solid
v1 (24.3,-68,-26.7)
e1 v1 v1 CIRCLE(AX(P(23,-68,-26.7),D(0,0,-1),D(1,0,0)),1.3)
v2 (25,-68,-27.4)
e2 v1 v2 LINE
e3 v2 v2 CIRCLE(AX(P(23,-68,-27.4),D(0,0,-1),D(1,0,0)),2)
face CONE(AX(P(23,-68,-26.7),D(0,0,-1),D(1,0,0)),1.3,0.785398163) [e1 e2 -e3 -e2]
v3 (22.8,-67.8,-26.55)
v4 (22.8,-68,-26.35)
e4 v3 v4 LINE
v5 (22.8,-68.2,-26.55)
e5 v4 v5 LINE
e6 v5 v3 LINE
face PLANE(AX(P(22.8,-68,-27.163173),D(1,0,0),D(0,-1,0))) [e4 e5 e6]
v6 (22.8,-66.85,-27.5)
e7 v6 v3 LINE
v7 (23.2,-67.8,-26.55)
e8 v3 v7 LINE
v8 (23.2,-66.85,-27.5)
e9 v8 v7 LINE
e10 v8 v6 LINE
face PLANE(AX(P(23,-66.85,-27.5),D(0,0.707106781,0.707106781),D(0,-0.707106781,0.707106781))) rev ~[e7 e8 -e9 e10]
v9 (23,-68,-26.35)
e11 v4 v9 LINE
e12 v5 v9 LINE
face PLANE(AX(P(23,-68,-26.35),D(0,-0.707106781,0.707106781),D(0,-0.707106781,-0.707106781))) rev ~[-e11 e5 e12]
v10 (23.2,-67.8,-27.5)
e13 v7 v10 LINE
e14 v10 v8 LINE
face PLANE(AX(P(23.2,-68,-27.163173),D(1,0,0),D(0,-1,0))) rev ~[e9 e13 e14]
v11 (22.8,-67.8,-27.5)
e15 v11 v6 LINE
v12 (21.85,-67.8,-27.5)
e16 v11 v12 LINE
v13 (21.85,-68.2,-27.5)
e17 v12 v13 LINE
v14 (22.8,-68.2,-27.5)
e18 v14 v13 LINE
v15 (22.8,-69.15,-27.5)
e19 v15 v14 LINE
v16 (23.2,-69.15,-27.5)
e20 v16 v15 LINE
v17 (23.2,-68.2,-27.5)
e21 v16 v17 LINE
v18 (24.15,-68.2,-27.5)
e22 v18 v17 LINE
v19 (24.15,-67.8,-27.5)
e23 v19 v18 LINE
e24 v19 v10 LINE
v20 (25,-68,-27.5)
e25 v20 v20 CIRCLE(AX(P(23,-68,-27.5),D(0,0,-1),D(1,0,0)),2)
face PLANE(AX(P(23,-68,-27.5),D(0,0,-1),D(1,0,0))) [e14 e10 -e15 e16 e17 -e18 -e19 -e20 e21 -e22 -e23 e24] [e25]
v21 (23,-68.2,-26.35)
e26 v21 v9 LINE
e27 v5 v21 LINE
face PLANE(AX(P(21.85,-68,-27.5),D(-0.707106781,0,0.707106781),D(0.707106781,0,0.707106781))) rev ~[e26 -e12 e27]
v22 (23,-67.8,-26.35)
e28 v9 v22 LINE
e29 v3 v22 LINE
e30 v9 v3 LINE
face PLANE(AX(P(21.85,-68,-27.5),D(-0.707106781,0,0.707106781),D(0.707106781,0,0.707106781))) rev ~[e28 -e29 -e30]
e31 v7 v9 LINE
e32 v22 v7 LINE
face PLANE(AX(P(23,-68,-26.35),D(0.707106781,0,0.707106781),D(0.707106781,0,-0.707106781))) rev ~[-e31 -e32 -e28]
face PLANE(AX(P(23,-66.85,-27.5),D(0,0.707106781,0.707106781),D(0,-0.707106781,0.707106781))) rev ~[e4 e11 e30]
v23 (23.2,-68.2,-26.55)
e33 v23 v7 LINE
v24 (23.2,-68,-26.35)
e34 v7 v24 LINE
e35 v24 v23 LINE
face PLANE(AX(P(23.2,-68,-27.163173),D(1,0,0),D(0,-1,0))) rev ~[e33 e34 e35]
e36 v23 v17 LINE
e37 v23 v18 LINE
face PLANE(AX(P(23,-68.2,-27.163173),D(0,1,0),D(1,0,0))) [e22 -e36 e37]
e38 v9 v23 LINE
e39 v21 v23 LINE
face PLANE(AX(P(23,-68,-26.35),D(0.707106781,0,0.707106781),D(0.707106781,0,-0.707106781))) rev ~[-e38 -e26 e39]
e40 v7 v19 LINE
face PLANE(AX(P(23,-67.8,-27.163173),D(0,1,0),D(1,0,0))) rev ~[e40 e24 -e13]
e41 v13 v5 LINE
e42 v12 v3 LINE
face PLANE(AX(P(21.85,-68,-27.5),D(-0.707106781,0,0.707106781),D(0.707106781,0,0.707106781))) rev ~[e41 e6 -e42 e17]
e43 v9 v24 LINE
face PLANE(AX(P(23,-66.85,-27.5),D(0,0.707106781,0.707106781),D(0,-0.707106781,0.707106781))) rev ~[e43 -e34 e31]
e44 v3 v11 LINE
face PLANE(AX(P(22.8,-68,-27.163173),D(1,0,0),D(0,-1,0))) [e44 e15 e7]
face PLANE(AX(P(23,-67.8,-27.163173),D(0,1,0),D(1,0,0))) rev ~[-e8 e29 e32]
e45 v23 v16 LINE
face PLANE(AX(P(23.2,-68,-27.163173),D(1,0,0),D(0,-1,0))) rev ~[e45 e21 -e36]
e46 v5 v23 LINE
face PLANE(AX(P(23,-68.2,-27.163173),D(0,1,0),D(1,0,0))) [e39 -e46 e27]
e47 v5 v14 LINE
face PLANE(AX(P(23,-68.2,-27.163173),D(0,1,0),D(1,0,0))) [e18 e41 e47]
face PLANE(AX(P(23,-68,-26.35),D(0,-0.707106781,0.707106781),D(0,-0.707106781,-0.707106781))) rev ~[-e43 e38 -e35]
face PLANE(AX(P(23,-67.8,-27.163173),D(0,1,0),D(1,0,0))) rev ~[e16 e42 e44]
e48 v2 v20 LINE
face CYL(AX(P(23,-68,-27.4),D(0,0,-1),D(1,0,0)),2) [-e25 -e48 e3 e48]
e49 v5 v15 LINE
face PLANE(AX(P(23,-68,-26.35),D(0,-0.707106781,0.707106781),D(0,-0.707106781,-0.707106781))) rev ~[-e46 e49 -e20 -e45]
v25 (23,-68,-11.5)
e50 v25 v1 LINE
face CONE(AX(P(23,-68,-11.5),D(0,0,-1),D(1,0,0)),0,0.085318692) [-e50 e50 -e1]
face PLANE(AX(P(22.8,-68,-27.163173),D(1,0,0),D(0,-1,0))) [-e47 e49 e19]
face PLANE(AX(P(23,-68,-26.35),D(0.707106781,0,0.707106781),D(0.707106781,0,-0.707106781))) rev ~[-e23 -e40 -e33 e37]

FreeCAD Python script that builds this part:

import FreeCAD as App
import Part
import Sketcher
from FreeCAD import Vector
Q = App.Units.Quantity

doc = App.newDocument("Part")
body = doc.addObject("PartDesign::Body", "Body")

sketch1 = doc.addObject("Sketcher::SketchObject", "Sketch")
body.addObject(sketch1)
sketch1.AttachmentSupport = (doc.XZ_Plane, [""])
sketch1.MapMode = "FlatFace"
sketch1.addGeometry(Part.LineSegment(Vector(0, 0, 0), Vector(0, -16, 0)), False)
sketch1.addGeometry(Part.LineSegment(Vector(0, -16, 0), Vector(1.3, -0.8, 0)), False)
sketch1.addGeometry(Part.LineSegment(Vector(1.3, -0.8, 0), Vector(2, -0.1, 0)), False)
sketch1.addGeometry(Part.LineSegment(Vector(2, -0.1, 0), Vector(2, 0, 0)), False)
sketch1.addGeometry(Part.LineSegment(Vector(2, 0, 0), Vector(0, 0, 0)), False)
sketch1.addConstraint(Sketcher.Constraint("Coincident", 0, 2, 1, 1))
sketch1.addConstraint(Sketcher.Constraint("Coincident", 1, 2, 2, 1))
sketch1.addConstraint(Sketcher.Constraint("Coincident", 2, 2, 3, 1))
sketch1.addConstraint(Sketcher.Constraint("Coincident", 3, 2, 4, 1))
sketch1.addConstraint(Sketcher.Constraint("Coincident", 4, 2, 0, 1))
sketch1.addConstraint(Sketcher.Constraint("Vertical", 0))
sketch1.addConstraint(Sketcher.Constraint("Vertical", 3))
sketch1.addConstraint(Sketcher.Constraint("Horizontal", 4))
sketch1.addConstraint(Sketcher.Constraint("Coincident", 4, 2, -1, 1))
sketch1.addConstraint(Sketcher.Constraint("DistanceX", 4, 2, 4, 1, 2.0))
sketch1.addConstraint(Sketcher.Constraint("DistanceY", 0, 2, 0, 1, 16.0))
sketch1.addConstraint(Sketcher.Constraint("Angle", 2, Q("45 deg")))
sketch1.addConstraint(Sketcher.Constraint("DistanceY", 3, 1, 3, 2, 0.1))
sketch1.addConstraint(Sketcher.Constraint("DistanceX", -1, 1, 1, 2, 1.3))
revolution = doc.addObject("PartDesign::Revolution", "Revolution")
body.addObject(revolution)
revolution.Profile = sketch1
revolution.ReferenceAxis = (sketch1, ["V_Axis"])
revolution.Angle = 360

sketch2 = doc.addObject("Sketcher::SketchObject", "Sketch001")
body.addObject(sketch2)
sketch2.AttachmentSupport = (doc.XZ_Plane, [""])
sketch2.MapMode = "FlatFace"
sketch2.addGeometry(Part.LineSegment(Vector(-1.1, 0, 0), Vector(0, -1.1, 0)), False)
sketch2.addGeometry(Part.LineSegment(Vector(0, -1.1, 0), Vector(1.1, 0, 0)), False)
sketch2.addGeometry(Part.LineSegment(Vector(1.1, 0, 0), Vector(-1.1, 0, 0)), False)
sketch2.addConstraint(Sketcher.Constraint("Coincident", 0, 2, 1, 1))
sketch2.addConstraint(Sketcher.Constraint("Coincident", 1, 2, 2, 1))
sketch2.addConstraint(Sketcher.Constraint("Coincident", 2, 2, 0, 1))
sketch2.addConstraint(Sketcher.Constraint("Horizontal", 2))
sketch2.addConstraint(Sketcher.Constraint("Symmetric", 1, 2, 2, 2, -1, 1))
sketch2.addConstraint(Sketcher.Constraint("PointOnObject", 0, 2, -2))
sketch2.addConstraint(Sketcher.Constraint("Perpendicular", 0, 1))
sketch2.addConstraint(Sketcher.Constraint("DistanceX", 2, 2, 2, 1, 2.3))
pocket1 = doc.addObject("PartDesign::Pocket", "Pocket")
body.addObject(pocket1)
pocket1.Profile = sketch2
pocket1.Length = 0.4
pocket1.Midplane = True
doc.recompute()

polarpattern = doc.addObject("PartDesign::PolarPattern", "PolarPattern")
body.addObject(polarpattern)
polarpattern.Originals = [pocket1]
polarpattern.Axis = (doc.Z_Axis, [""])
polarpattern.Angle = 90
polarpattern.Occurrences = 2
body.Tip = polarpattern
body2 = doc.addObject("PartDesign::Body", "Body001")
doc.recompute()

body.Placement = App.Placement(Vector(23, -68, -27.5), App.Rotation(Vector(1, 0, 0), 180))
boolean = doc.addObject("PartDesign::Boolean", "Boolean")
body2.addObject(boolean)
boolean.Type = "Fuse"
boolean.addObjects([body])

doc.recompute()
